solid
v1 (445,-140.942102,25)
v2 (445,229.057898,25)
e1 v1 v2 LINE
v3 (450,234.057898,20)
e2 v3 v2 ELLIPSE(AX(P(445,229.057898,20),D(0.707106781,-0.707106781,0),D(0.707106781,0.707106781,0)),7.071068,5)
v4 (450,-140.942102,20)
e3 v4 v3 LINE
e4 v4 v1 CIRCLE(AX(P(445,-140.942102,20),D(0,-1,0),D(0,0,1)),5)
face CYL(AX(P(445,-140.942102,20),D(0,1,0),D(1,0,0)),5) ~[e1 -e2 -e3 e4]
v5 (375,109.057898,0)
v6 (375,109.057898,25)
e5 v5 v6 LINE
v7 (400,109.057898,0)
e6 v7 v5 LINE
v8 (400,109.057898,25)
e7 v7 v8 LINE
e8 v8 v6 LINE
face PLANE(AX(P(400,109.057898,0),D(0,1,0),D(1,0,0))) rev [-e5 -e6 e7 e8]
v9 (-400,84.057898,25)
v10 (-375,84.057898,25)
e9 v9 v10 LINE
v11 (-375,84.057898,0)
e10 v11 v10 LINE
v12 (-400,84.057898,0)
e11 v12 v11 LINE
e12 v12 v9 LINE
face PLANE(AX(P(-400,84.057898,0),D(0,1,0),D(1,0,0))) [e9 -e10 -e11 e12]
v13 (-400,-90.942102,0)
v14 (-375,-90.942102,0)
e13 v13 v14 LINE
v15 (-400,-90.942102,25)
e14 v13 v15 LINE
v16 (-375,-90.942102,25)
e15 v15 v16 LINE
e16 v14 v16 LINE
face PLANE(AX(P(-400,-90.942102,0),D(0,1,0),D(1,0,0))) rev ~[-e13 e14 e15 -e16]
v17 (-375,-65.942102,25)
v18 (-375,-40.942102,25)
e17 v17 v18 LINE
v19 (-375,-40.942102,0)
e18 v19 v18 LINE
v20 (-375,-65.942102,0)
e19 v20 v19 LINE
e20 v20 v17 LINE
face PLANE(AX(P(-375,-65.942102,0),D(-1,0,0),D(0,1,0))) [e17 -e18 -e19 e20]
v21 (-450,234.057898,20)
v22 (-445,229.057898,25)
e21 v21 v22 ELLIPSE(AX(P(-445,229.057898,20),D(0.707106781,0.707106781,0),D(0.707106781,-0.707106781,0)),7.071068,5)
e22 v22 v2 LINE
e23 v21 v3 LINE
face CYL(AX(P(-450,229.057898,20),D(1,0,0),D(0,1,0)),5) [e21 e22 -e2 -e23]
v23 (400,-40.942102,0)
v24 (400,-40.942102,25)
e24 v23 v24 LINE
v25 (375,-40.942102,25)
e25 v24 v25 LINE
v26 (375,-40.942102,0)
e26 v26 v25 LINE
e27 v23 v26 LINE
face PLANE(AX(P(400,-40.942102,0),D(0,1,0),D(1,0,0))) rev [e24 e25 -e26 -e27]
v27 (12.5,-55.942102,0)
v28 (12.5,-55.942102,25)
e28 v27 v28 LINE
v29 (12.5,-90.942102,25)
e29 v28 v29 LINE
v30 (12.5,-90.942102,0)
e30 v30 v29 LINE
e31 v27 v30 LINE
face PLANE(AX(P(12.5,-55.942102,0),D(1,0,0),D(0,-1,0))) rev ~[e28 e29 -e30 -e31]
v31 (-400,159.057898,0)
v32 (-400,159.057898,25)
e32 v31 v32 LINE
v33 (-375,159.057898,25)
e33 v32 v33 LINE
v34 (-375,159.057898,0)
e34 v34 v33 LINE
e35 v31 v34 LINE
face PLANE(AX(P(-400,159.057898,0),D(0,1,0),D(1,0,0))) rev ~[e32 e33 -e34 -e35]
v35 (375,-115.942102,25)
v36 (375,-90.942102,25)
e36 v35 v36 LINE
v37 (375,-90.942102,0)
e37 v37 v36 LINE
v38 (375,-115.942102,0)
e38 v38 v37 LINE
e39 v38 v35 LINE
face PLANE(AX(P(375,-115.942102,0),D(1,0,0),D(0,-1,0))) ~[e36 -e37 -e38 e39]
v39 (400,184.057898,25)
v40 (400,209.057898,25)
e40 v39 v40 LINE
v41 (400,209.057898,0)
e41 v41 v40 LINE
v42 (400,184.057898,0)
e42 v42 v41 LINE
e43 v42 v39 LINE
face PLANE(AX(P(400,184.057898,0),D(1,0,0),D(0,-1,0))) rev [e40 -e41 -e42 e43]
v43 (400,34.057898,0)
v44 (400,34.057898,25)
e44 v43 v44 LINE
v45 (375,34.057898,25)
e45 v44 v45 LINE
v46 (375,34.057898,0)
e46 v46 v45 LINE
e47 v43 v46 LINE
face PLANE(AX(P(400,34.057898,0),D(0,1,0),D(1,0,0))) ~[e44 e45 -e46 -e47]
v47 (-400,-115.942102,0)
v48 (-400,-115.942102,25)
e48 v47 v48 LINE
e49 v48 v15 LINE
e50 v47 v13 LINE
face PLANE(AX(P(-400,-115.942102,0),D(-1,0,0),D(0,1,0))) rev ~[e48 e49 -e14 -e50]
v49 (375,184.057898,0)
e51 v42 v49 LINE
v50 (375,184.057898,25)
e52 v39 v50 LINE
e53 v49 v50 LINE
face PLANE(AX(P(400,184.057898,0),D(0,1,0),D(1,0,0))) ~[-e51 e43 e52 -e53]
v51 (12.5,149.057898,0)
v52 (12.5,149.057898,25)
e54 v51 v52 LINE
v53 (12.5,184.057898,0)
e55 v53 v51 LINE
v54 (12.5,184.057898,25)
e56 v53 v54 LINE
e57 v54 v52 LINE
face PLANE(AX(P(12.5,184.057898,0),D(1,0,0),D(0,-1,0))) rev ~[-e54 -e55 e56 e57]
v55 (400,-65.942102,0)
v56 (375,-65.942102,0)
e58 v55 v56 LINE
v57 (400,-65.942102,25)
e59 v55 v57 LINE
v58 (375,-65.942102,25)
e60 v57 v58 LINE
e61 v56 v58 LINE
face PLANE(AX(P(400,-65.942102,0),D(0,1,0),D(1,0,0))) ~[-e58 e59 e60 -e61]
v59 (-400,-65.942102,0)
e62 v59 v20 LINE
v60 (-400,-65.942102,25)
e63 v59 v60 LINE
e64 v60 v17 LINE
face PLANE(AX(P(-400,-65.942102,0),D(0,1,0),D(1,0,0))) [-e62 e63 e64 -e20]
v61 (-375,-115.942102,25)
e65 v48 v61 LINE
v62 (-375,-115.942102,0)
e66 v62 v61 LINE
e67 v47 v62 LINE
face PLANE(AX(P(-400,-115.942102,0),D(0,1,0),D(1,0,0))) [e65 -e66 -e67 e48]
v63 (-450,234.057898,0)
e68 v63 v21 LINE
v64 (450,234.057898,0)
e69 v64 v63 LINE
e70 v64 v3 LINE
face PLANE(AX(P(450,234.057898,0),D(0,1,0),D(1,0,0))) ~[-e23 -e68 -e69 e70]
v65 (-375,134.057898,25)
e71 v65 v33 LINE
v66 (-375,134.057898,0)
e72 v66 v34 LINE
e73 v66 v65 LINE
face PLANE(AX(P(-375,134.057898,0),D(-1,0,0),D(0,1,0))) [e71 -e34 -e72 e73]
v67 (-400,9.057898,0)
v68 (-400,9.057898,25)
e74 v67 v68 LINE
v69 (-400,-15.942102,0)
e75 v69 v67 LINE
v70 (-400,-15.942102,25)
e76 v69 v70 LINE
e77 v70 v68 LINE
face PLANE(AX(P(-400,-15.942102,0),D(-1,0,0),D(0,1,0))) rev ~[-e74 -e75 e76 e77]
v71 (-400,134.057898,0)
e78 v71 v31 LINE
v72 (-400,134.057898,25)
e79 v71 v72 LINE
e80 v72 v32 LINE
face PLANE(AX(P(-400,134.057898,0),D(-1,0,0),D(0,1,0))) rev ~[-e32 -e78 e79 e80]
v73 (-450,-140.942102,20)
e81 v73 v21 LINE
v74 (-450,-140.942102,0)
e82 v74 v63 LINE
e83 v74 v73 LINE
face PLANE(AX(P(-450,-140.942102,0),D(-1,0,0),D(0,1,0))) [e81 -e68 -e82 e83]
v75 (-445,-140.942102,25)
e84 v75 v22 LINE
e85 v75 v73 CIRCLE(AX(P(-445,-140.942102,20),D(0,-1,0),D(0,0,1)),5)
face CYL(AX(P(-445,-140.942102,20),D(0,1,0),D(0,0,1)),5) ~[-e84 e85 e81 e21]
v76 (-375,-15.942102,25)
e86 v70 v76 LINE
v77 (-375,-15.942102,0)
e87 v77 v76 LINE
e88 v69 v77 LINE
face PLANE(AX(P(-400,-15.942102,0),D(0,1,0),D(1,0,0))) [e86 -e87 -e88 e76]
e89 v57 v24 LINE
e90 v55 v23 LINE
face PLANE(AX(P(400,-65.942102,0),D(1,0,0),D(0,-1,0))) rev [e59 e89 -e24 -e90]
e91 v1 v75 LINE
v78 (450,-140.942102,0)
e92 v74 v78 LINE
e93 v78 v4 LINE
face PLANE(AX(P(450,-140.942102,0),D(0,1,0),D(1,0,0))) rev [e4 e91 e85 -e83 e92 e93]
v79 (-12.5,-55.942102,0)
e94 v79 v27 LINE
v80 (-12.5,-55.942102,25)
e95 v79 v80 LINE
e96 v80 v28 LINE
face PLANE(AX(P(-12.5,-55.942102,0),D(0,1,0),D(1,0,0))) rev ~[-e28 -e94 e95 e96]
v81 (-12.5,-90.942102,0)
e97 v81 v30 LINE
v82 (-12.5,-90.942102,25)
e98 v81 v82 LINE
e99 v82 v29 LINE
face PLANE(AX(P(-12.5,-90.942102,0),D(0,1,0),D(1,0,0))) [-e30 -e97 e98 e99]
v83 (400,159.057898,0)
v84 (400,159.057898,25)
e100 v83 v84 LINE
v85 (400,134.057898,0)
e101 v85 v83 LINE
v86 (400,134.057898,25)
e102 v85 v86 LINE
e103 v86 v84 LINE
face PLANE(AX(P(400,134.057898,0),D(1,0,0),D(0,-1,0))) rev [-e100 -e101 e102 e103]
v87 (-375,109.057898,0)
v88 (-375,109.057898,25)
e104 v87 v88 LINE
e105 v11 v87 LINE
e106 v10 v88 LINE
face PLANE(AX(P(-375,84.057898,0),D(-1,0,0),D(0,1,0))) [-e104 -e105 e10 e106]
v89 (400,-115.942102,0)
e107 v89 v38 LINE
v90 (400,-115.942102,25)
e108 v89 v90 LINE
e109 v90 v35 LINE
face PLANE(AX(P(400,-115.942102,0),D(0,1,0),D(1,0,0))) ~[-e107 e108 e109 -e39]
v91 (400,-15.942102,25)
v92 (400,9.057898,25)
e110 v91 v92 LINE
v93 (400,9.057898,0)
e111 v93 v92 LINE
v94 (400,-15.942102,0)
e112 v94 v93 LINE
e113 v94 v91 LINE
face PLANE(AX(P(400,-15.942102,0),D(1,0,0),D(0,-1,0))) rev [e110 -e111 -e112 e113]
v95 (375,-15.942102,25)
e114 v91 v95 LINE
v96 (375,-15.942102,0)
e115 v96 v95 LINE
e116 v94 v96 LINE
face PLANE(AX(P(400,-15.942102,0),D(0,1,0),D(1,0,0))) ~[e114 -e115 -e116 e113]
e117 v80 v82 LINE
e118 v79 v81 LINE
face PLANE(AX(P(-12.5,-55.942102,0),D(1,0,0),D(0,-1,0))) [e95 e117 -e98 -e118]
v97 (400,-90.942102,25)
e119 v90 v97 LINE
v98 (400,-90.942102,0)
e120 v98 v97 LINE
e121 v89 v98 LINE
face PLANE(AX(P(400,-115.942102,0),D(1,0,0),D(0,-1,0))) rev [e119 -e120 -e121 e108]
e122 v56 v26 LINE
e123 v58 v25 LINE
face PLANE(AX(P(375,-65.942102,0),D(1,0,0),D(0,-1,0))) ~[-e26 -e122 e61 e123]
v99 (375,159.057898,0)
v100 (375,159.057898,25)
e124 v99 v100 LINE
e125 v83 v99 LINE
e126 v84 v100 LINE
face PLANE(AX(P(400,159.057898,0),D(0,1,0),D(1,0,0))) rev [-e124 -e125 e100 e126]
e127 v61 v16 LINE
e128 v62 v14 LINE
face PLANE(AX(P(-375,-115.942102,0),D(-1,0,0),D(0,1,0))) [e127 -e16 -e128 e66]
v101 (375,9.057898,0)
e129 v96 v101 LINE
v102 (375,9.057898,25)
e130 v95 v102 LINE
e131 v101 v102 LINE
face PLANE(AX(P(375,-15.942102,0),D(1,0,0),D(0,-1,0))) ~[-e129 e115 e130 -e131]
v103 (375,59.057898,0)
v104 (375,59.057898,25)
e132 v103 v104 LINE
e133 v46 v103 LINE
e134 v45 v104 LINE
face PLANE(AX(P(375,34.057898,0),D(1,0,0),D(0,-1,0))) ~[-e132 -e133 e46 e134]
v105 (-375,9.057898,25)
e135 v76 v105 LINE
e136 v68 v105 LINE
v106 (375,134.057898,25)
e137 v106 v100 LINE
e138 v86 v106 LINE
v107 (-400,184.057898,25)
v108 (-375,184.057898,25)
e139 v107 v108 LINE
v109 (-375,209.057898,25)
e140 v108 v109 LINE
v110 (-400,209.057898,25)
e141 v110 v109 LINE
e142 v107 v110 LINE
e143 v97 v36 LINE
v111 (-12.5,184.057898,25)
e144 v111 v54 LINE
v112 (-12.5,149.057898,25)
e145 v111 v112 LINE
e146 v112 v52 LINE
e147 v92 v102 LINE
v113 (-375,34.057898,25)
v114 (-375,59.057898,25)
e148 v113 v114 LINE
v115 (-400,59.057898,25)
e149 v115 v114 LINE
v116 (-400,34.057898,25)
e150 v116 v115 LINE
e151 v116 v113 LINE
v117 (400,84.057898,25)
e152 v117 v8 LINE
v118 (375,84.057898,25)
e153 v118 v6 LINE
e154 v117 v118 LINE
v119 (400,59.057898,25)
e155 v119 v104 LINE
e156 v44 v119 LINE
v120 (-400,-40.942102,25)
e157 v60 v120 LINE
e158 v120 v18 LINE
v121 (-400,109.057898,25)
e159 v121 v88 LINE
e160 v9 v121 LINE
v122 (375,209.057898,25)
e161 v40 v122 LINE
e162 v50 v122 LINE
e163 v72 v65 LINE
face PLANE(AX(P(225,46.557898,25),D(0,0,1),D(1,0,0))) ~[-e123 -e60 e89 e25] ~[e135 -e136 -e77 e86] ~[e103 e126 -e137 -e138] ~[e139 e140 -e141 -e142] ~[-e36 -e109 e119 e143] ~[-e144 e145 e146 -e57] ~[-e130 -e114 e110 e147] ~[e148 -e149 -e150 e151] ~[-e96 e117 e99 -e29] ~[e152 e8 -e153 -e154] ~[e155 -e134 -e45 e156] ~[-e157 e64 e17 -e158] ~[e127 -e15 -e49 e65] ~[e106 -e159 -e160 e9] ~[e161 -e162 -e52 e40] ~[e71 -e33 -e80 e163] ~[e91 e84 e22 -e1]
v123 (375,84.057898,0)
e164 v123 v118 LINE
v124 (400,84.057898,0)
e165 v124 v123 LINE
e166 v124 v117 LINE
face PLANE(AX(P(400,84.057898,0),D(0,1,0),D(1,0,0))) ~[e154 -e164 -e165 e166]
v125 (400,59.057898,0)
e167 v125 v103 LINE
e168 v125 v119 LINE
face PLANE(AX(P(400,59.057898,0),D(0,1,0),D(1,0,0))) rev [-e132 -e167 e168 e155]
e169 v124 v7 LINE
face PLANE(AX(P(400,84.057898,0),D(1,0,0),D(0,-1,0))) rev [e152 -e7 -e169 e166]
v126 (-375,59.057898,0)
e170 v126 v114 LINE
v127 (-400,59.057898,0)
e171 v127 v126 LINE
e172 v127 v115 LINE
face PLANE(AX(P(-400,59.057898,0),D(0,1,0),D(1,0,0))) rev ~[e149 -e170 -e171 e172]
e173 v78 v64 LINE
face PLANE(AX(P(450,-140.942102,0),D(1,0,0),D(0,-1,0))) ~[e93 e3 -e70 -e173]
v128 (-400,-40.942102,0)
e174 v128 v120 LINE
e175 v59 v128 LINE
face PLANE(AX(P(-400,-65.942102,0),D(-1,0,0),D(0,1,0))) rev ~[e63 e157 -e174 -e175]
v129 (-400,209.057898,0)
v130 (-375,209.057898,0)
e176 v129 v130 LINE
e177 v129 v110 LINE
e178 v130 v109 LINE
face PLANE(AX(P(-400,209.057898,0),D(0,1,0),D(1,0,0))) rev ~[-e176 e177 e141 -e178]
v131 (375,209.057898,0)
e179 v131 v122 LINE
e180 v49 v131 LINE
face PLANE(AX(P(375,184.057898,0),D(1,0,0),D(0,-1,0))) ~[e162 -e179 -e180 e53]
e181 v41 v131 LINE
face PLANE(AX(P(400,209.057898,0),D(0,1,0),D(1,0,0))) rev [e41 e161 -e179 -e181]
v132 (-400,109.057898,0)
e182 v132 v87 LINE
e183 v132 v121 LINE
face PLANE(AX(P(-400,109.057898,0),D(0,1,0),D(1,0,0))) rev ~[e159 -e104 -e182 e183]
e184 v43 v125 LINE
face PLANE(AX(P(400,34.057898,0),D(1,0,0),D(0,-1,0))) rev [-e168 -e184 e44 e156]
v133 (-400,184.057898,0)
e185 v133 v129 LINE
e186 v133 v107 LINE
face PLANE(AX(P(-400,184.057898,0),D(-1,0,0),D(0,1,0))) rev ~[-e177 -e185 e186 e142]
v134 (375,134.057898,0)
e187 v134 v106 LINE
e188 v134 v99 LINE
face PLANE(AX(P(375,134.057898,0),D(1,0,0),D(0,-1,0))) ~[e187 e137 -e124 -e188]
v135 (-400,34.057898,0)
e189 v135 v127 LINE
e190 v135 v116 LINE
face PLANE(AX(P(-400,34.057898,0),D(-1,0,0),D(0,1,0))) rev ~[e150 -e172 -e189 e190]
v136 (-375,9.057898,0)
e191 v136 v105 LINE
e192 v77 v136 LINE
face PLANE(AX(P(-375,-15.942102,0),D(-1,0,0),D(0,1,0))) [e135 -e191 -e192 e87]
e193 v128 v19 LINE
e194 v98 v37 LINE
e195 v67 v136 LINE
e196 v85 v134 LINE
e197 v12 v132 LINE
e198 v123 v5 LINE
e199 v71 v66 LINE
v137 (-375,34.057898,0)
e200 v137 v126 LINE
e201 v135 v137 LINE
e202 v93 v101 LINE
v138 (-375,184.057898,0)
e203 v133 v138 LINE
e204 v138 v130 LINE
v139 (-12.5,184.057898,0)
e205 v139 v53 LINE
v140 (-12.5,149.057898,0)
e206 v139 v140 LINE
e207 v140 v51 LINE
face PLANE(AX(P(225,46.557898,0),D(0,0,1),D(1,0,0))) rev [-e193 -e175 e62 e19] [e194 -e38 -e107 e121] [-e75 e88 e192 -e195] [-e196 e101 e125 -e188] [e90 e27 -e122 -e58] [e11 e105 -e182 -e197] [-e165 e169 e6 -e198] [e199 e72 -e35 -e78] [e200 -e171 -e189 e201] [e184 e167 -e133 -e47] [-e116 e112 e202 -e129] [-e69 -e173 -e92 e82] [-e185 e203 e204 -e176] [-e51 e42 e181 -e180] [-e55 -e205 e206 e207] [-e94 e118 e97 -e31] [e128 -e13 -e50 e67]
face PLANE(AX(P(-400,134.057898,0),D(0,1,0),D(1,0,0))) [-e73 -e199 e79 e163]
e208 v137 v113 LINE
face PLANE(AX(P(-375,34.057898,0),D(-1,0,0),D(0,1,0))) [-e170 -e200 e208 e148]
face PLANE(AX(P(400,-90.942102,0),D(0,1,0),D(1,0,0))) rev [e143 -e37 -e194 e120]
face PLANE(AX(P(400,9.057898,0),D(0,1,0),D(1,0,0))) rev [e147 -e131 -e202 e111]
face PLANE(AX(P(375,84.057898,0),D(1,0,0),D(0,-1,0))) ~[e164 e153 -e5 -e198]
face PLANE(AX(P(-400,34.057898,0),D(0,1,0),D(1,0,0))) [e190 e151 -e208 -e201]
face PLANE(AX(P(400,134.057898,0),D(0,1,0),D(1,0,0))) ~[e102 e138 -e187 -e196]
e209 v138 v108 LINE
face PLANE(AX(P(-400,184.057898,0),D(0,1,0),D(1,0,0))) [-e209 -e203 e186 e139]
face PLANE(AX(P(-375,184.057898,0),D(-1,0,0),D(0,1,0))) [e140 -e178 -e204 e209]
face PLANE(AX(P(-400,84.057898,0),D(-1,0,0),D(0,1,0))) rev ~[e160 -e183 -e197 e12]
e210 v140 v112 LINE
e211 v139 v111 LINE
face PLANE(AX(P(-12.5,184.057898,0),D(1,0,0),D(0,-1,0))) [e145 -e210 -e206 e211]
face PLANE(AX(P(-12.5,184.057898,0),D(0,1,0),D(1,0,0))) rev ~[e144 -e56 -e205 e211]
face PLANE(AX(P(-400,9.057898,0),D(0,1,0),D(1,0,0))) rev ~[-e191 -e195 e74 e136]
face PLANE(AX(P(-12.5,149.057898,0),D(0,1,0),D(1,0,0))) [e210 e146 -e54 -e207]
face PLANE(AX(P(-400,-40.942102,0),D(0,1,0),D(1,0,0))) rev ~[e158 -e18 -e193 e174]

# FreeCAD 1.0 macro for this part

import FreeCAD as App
import Part
import Sketcher
from FreeCAD import Vector


def edges_at(feature, points):
    """Names of the edges that pass closest to the given points."""
    edges = feature.Shape.Edges
    near = lambda p: min(range(len(edges)), key=lambda i: edges[i].distToShape(Part.Vertex(*p))[0])
    return sorted({f"Edge{near(p) + 1}" for p in points})


def add_polygon(sketch, points):
    """Adds a closed chain of lines whose ends are joined by coincident constraints."""
    first, n = sketch.GeometryCount, len(points)
    for a, b in zip(points, points[1:] + points[:1]):
        sketch.addGeometry(Part.LineSegment(App.Vector(*a, 0), App.Vector(*b, 0)), False)
    for i in range(n):
        sketch.addConstraint(Sketcher.Constraint("Coincident", first + i, 2, first + (i + 1) % n, 1))

doc = App.newDocument("Part")
body = doc.addObject("PartDesign::Body", "Body")

# Sketch on XY plane
sketch1 = body.newObject("Sketcher::SketchObject", "Sketch")
sketch1.AttachmentSupport = (doc.getObject("XY_Plane"), [""])
sketch1.MapMode = "FlatFace"
add_polygon(sketch1, [(-450, 234.057898), (-450, -140.942102), (0, -140.942102), (0, 234.057898)])  # lines 0-3
add_polygon(sketch1, [(-375, -115.942102), (-400, -115.942102), (-400, -90.942102), (-375, -90.942102)])  # lines 4-7
add_polygon(sketch1, [(-375, -65.942102), (-400, -65.942102), (-400, -40.942102), (-375, -40.942102)])  # lines 8-11
add_polygon(sketch1, [(-375, -15.942102), (-400, -15.942102), (-400, 9.057898), (-375, 9.057898)])  # lines 12-15
add_polygon(sketch1, [(-375, 34.057898), (-400, 34.057898), (-400, 59.057898), (-375, 59.057898)])  # lines 16-19
add_polygon(sketch1, [(-375, 84.057898), (-400, 84.057898), (-400, 109.057898), (-375, 109.057898)])  # lines 20-23
add_polygon(sketch1, [(-375, 134.057898), (-400, 134.057898), (-400, 159.057898), (-375, 159.057898)])  # lines 24-27
add_polygon(sketch1, [(-375, 184.057898), (-400, 184.057898), (-400, 209.057898), (-375, 209.057898)])  # lines 28-31
sketch1.addConstraint(Sketcher.Constraint("Vertical", 0))
sketch1.addConstraint(Sketcher.Constraint("Horizontal", 1))
sketch1.addConstraint(Sketcher.Constraint("Vertical", 2))
sketch1.addConstraint(Sketcher.Constraint("Horizontal", 3))
sketch1.addConstraint(Sketcher.Constraint("Horizontal", 4))
sketch1.addConstraint(Sketcher.Constraint("Vertical", 5))
sketch1.addConstraint(Sketcher.Constraint("Horizontal", 6))
sketch1.addConstraint(Sketcher.Constraint("Vertical", 7))
sketch1.addConstraint(Sketcher.Constraint("Horizontal", 8))
sketch1.addConstraint(Sketcher.Constraint("Vertical", 9))
sketch1.addConstraint(Sketcher.Constraint("Horizontal", 10))
sketch1.addConstraint(Sketcher.Constraint("Vertical", 11))
sketch1.addConstraint(Sketcher.Constraint("Horizontal", 12))
sketch1.addConstraint(Sketcher.Constraint("Vertical", 13))
sketch1.addConstraint(Sketcher.Constraint("Horizontal", 14))
sketch1.addConstraint(Sketcher.Constraint("Vertical", 15))
sketch1.addConstraint(Sketcher.Constraint("Horizontal", 16))
sketch1.addConstraint(Sketcher.Constraint("Vertical", 17))
sketch1.addConstraint(Sketcher.Constraint("Horizontal", 18))
sketch1.addConstraint(Sketcher.Constraint("Vertical", 19))
sketch1.addConstraint(Sketcher.Constraint("Horizontal", 20))
sketch1.addConstraint(Sketcher.Constraint("Vertical", 21))
sketch1.addConstraint(Sketcher.Constraint("Horizontal", 22))
sketch1.addConstraint(Sketcher.Constraint("Vertical", 23))
sketch1.addConstraint(Sketcher.Constraint("Horizontal", 24))
sketch1.addConstraint(Sketcher.Constraint("Vertical", 25))
sketch1.addConstraint(Sketcher.Constraint("Horizontal", 26))
sketch1.addConstraint(Sketcher.Constraint("Vertical", 27))
sketch1.addConstraint(Sketcher.Constraint("Horizontal", 28))
sketch1.addConstraint(Sketcher.Constraint("Vertical", 29))
sketch1.addConstraint(Sketcher.Constraint("Horizontal", 30))
sketch1.addConstraint(Sketcher.Constraint("Vertical", 31))
sketch1.addConstraint(Sketcher.Constraint("PointOnObject", 1, 2, -2))
sketch1.addConstraint(Sketcher.Constraint("Vertical", 5, 2, 8, 2))
sketch1.addConstraint(Sketcher.Constraint("Vertical", 7, 2, 10, 2))
sketch1.addConstraint(Sketcher.Constraint("Vertical", 9, 2, 12, 2))
sketch1.addConstraint(Sketcher.Constraint("Vertical", 11, 2, 14, 2))
sketch1.addConstraint(Sketcher.Constraint("Vertical", 13, 2, 16, 2))
sketch1.addConstraint(Sketcher.Constraint("Vertical", 15, 2, 18, 2))
sketch1.addConstraint(Sketcher.Constraint("Vertical", 17, 2, 20, 2))
sketch1.addConstraint(Sketcher.Constraint("Vertical", 19, 2, 22, 2))
sketch1.addConstraint(Sketcher.Constraint("Vertical", 21, 2, 24, 2))
sketch1.addConstraint(Sketcher.Constraint("Vertical", 23, 2, 26, 2))
sketch1.addConstraint(Sketcher.Constraint("Vertical", 25, 2, 28, 2))
sketch1.addConstraint(Sketcher.Constraint("Vertical", 27, 2, 30, 2))
sketch1.addConstraint(Sketcher.Constraint("Equal", 30, 5))
sketch1.addConstraint(Sketcher.Constraint("Equal", 7, 9))
sketch1.addConstraint(Sketcher.Constraint("Equal", 11, 13))
sketch1.addConstraint(Sketcher.Constraint("Equal", 15, 17))
sketch1.addConstraint(Sketcher.Constraint("Equal", 19, 21))
sketch1.addConstraint(Sketcher.Constraint("Equal", 23, 25))
sketch1.addConstraint(Sketcher.Constraint("Equal", 27, 29))
sketch1.addConstraint(Sketcher.Constraint("DistanceX", 1, 1, 1, 2, 450.0))
sketch1.addConstraint(Sketcher.Constraint("DistanceX", 4, 2, 4, 1, 25.0))
sketch1.addConstraint(Sketcher.Constraint("DistanceY", 0, 2, 0, 1, 375.0))
sketch1.addConstraint(Sketcher.Constraint("DistanceX", 4, 2, -1, 1, 400.0))
sketch1.addConstraint(Sketcher.Constraint("DistanceY", 0, 2, 4, 2, 25.0))
sketch1.addConstraint(Sketcher.Constraint("DistanceY", 5, 2, 8, 2, 25.0))
sketch1.addConstraint(Sketcher.Constraint("DistanceY", 9, 2, 12, 2, 25.0))
sketch1.addConstraint(Sketcher.Constraint("DistanceY", 13, 2, 16, 2, 25.0))
sketch1.addConstraint(Sketcher.Constraint("DistanceY", 17, 2, 20, 2, 25.0))
sketch1.addConstraint(Sketcher.Constraint("DistanceY", 21, 2, 24, 2, 25.0))
sketch1.addConstraint(Sketcher.Constraint("DistanceY", 25, 2, 28, 2, 25.0))
sketch1.addConstraint(Sketcher.Constraint("DistanceY", 0, 2, -1, 1, 140.942102))
pad1 = body.newObject("PartDesign::Pad", "Pad")
pad1.Profile = sketch1
pad1.Length = 25
body2 = doc.addObject("PartDesign::Body", "Body001")
doc.recompute()

body2.BaseFeature = body
doc.recompute()

mirroring = doc.addObject("Part::Mirroring", "Mirroring")
mirroring.Source = body
mirroring.Base = Vector(0, 46.557898, 12.5)
mirroring.Normal = Vector(1, 0, 0)
body3 = doc.addObject("PartDesign::Body", "Body002")
body3.BaseFeature = mirroring
boolean = body2.newObject("PartDesign::Boolean", "Boolean")
boolean.Type = "Fuse"
boolean.addObjects([body3])
doc.recompute()

# Sketch on XY plane
sketch2 = body2.newObject("Sketcher::SketchObject", "Sketch001")
sketch2.AttachmentSupport = (doc.getObject("XY_Plane001"), [""])
sketch2.MapMode = "FlatFace"
add_polygon(sketch2, [(-12.5, 149.057898), (-12.5, 184.057898), (12.5, 184.057898), (12.5, 149.057898)])  # lines 0-3
add_polygon(sketch2, [(-12.5, -90.942102), (-12.5, -55.942102), (12.5, -55.942102), (12.5, -90.942102)])  # lines 4-7
sketch2.addConstraint(Sketcher.Constraint("Vertical", 0))
sketch2.addConstraint(Sketcher.Constraint("Horizontal", 1))
sketch2.addConstraint(Sketcher.Constraint("Vertical", 2))
sketch2.addConstraint(Sketcher.Constraint("Horizontal", 3))
sketch2.addConstraint(Sketcher.Constraint("Vertical", 4))
sketch2.addConstraint(Sketcher.Constraint("Horizontal", 5))
sketch2.addConstraint(Sketcher.Constraint("Vertical", 6))
sketch2.addConstraint(Sketcher.Constraint("Horizontal", 7))
sketch2.addConstraint(Sketcher.Constraint("Vertical", 3, 2, 4, 2))
sketch2.addConstraint(Sketcher.Constraint("Vertical", 2, 2, 5, 2))
sketch2.addConstraint(Sketcher.Constraint("Equal", 2, 4))
sketch2.addConstraint(Sketcher.Constraint("DistanceX", 1, 1, 1, 2, 25.0))
sketch2.addConstraint(Sketcher.Constraint("DistanceY", 0, 1, 0, 2, 35.0))
sketch2.addConstraint(Sketcher.Constraint("DistanceY", 4, 2, 3, 2, 205.0))
sketch2.addConstraint(Sketcher.Constraint("DistanceX", 0, 2, -1, 1, 12.5))
sketch2.addConstraint(Sketcher.Constraint("DistanceY", -1, 1, 0, 2, 184.057898))
pocket1 = body2.newObject("PartDesign::Pocket", "Pocket")
pocket1.Profile = sketch2
pocket1.Length = 25
pocket1.Reversed = True
doc.recompute()

fillet = body2.newObject("PartDesign::Fillet", "Fillet")
fillet.Base = (pocket1, edges_at(pocket1, [(0, 234.058, 25), (450, 46.558, 25), (-450, 46.558, 25)]))
fillet.Radius = 5
mirroring.Visibility = False

doc.recompute()
